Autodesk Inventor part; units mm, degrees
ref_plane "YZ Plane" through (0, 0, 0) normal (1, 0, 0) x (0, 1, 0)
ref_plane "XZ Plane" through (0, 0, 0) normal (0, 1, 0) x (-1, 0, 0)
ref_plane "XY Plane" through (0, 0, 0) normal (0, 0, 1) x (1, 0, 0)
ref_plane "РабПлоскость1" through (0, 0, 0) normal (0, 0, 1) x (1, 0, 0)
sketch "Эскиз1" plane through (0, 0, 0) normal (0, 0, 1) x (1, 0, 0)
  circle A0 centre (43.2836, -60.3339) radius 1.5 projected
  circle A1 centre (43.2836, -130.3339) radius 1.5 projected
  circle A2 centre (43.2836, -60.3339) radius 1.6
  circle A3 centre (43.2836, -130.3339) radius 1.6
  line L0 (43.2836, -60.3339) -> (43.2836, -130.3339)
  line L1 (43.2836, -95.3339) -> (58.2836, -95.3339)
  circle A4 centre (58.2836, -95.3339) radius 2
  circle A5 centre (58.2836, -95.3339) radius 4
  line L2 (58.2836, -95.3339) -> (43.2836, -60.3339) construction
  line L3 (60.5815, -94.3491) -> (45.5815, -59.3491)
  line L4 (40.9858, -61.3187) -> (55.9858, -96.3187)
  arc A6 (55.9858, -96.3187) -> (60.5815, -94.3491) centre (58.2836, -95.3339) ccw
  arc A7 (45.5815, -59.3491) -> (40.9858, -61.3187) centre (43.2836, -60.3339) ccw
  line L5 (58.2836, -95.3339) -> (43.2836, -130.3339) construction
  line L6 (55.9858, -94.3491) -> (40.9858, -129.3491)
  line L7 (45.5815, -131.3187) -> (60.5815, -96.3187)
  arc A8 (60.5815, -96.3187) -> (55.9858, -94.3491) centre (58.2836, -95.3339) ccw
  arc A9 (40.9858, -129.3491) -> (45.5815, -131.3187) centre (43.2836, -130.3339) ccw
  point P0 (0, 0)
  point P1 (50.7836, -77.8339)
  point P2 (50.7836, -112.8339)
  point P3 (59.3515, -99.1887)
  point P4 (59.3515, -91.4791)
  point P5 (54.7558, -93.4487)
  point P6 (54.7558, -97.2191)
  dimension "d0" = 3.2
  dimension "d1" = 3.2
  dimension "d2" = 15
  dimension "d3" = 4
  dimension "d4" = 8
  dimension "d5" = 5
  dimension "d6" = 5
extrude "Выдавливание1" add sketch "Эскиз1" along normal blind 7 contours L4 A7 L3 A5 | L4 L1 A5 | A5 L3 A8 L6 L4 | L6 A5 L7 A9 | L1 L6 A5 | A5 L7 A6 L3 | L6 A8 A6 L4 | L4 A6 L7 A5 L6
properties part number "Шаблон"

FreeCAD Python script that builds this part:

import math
import FreeCAD as App
import Part
import Sketcher
from FreeCAD import Vector

doc = App.newDocument("Part")
body = doc.addObject("PartDesign::Body", "Body")

# Sketch on XY plane
sketch1 = body.newObject("Sketcher::SketchObject", "Sketch")
sketch1.AttachmentSupport = (doc.getObject("XY_Plane"), [""])
sketch1.MapMode = "FlatFace"
sketch1.addGeometry([
    Part.LineSegment(Vector(40.9858, -61.3187, 0), Vector(43.2836, -66.680233, 0)),  # 0
    Part.LineSegment(Vector(43.2836, -66.680233, 0), Vector(54.755759, -93.448605, 0)),  # 1
    Part.ArcOfCircle(Part.Circle(Vector(58.2836, -95.3339, 0), Vector(0, 0, 1), 4), math.radians(151.879735), math.radians(208.120265)),  # 2
    Part.LineSegment(Vector(54.755759, -97.219195, 0), Vector(43.2836, -123.987567, 0)),  # 3
    Part.LineSegment(Vector(43.2836, -123.987567, 0), Vector(40.9858, -129.3491, 0)),  # 4
    Part.ArcOfCircle(Part.Circle(Vector(43.2836, -130.3339, 0), Vector(0, 0, 1), 2.499943), math.radians(156.800808), math.radians(336.80171)),  # 5
    Part.LineSegment(Vector(45.5815, -131.3187, 0), Vector(59.351493, -99.188716, 0)),  # 6
    Part.ArcOfCircle(Part.Circle(Vector(58.2836, -95.3339, 0), Vector(0, 0, 1), 4), math.radians(-74.515759), math.radians(74.515759)),  # 7
    Part.LineSegment(Vector(59.351493, -91.479084, 0), Vector(45.5815, -59.3491, 0)),  # 8
    Part.ArcOfCircle(Part.Circle(Vector(43.2836, -60.3339, 0), Vector(0, 0, 1), 2.500035), math.radians(23.19829), math.radians(203.199192)),  # 9
    Part.Circle(Vector(43.2836, -60.3339, 0), Vector(0, 0, 1), 1.6),  # 10
    Part.Circle(Vector(58.2836, -95.3339, 0), Vector(0, 0, 1), 2),  # 11
    Part.Circle(Vector(43.2836, -130.3339, 0), Vector(0, 0, 1), 1.6),  # 12
], False)
sketch1.addConstraint([
    Sketcher.Constraint("Coincident", 0, 2, 1, 1),
    Sketcher.Constraint("Coincident", 1, 2, 2, 1),
    Sketcher.Constraint("Coincident", 2, 2, 3, 1),
    Sketcher.Constraint("Coincident", 3, 2, 4, 1),
    Sketcher.Constraint("Tangent", 4, 2, 5, 1),
    Sketcher.Constraint("Tangent", 5, 2, 6, 1),
    Sketcher.Constraint("Coincident", 6, 2, 7, 1),
    Sketcher.Constraint("Coincident", 7, 2, 8, 1),
    Sketcher.Constraint("Tangent", 8, 2, 9, 1),
    Sketcher.Constraint("Tangent", 9, 2, 0, 1),
    Sketcher.Constraint("Coincident", 7, 3, 2, 3),
    Sketcher.Constraint("Coincident", 10, 3, 9, 3),
    Sketcher.Constraint("Coincident", 11, 3, 2, 3),
    Sketcher.Constraint("Coincident", 12, 3, 5, 3),
    Sketcher.Constraint("Equal", 2, 7),
    Sketcher.Constraint("Equal", 5, 9),
    Sketcher.Constraint("Equal", 10, 12),
    Sketcher.Constraint("Parallel", 0, 1),
    Sketcher.Constraint("Parallel", 3, 4),
    Sketcher.Constraint("Parallel", 4, 6),
    Sketcher.Constraint("Parallel", 1, 8),
    Sketcher.Constraint("Vertical", 5, 3, 9, 3),
    Sketcher.Constraint("Vertical", 12, 3, 0, 2),
    Sketcher.Constraint("Vertical", 1, 2, 2, 2),
    Sketcher.Constraint("Vertical", 0, 2, 3, 2),
    Sketcher.Constraint("Vertical", 5, 2, 8, 2),
    Sketcher.Constraint("Diameter", 11, 4.0),
    Sketcher.Constraint("Radius", 2, 4.0),
    Sketcher.Constraint("Diameter", 10, 3.2),
    Sketcher.Constraint("Radius", 5, 2.5),
    Sketcher.Constraint("DistanceX", 5, 3, 2, 3, 15.0),
    Sketcher.Constraint("DistanceY", 5, 3, 2, 3, 35.0),
    Sketcher.Constraint("DistanceX", 4, 2, 2, 2, 13.77),
    Sketcher.Constraint("DistanceY", 2, 3, -1, 1, 95.334),
    Sketcher.Constraint("DistanceX", -1, 1, 2, 3, 58.2836),
])
pad1 = body.newObject("PartDesign::Pad", "Pad")
pad1.Profile = sketch1
pad1.Length = 7

doc.recompute()
